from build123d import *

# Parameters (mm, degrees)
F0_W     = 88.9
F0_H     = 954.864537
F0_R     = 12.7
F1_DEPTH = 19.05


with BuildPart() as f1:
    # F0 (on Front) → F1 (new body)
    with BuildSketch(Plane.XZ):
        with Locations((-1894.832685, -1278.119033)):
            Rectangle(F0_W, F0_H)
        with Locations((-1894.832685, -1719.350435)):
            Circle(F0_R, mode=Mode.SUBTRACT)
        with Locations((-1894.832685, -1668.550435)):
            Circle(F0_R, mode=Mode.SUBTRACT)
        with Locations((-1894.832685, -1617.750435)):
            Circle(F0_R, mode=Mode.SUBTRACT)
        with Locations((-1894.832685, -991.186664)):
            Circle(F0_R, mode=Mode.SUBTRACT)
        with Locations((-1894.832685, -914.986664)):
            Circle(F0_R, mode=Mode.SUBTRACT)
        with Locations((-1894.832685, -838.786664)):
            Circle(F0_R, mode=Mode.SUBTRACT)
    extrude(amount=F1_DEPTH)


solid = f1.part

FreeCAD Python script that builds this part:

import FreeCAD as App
import Part
import Sketcher
from FreeCAD import Vector
Q = App.Units.Quantity


def add_polygon(sketch, points):
    """Adds a closed chain of lines whose ends are joined by coincident constraints."""
    first, n = sketch.GeometryCount, len(points)
    for a, b in zip(points, points[1:] + points[:1]):
        sketch.addGeometry(Part.LineSegment(App.Vector(*a, 0), App.Vector(*b, 0)), False)
    for i in range(n):
        sketch.addConstraint(Sketcher.Constraint("Coincident", first + i, 2, first + (i + 1) % n, 1))

doc = App.newDocument("Part")
body = doc.addObject("PartDesign::Body", "Body")

# Sketch on XZ plane
sketch1 = body.newObject("Sketcher::SketchObject", "Sketch")
sketch1.AttachmentSupport = (doc.getObject("XZ_Plane"), [""])
sketch1.MapMode = "FlatFace"
add_polygon(sketch1, [(-1939, -801), (-1939, -1756), (-1850, -1756), (-1850, -801)])  # lines 0-3
sketch1.addGeometry(Part.Circle(Vector(-1895, -1719, 0), Vector(0, 0, 1), 13), False)  # 4
sketch1.addGeometry(Part.Circle(Vector(-1895, -1669, 0), Vector(0, 0, 1), 13), False)  # 5
sketch1.addGeometry(Part.Circle(Vector(-1895, -1618, 0), Vector(0, 0, 1), 13), False)  # 6
sketch1.addGeometry(Part.Circle(Vector(-1895, -991, 0), Vector(0, 0, 1), 13), False)  # 7
sketch1.addGeometry(Part.Circle(Vector(-1895, -915, 0), Vector(0, 0, 1), 13), False)  # 8
sketch1.addGeometry(Part.Circle(Vector(-1895, -839, 0), Vector(0, 0, 1), 13), False)  # 9
sketch1.addConstraint(Sketcher.Constraint("Vertical", 0))
sketch1.addConstraint(Sketcher.Constraint("Horizontal", 1))
sketch1.addConstraint(Sketcher.Constraint("Vertical", 2))
sketch1.addConstraint(Sketcher.Constraint("Horizontal", 3))
sketch1.addConstraint(Sketcher.Constraint("Equal", 4, 5))
sketch1.addConstraint(Sketcher.Constraint("Equal", 5, 6))
sketch1.addConstraint(Sketcher.Constraint("Equal", 6, 7))
sketch1.addConstraint(Sketcher.Constraint("Equal", 7, 8))
sketch1.addConstraint(Sketcher.Constraint("Equal", 8, 9))
sketch1.addConstraint(Sketcher.Constraint("Vertical", 4, 3, 5, 3))
sketch1.addConstraint(Sketcher.Constraint("Vertical", 5, 3, 6, 3))
sketch1.addConstraint(Sketcher.Constraint("Vertical", 6, 3, 7, 3))
sketch1.addConstraint(Sketcher.Constraint("Vertical", 7, 3, 8, 3))
sketch1.addConstraint(Sketcher.Constraint("Vertical", 8, 3, 9, 3))
sketch1.addConstraint(Sketcher.Constraint("Diameter", 4, Q("1 in")))
sketch1.addConstraint(Sketcher.Constraint("DistanceX", 1, 1, 1, 2, Q("3.5 in")))
sketch1.addConstraint(Sketcher.Constraint("DistanceY", 4, 3, 5, 3, Q("2 in")))
sketch1.addConstraint(Sketcher.Constraint("DistanceY", 5, 3, 6, 3, Q("2 in")))
sketch1.addConstraint(Sketcher.Constraint("DistanceY", 7, 3, 8, 3, Q("3 in")))
sketch1.addConstraint(Sketcher.Constraint("DistanceY", 8, 3, 9, 3, Q("3 in")))
sketch1.addConstraint(Sketcher.Constraint("DistanceX", 0, 2, 4, 3, Q("1.75 in")))
sketch1.addConstraint(Sketcher.Constraint("DistanceY", 0, 2, -1, 1, Q("1755.551301 mm")))
sketch1.addConstraint(Sketcher.Constraint("DistanceY", 9, 3, 2, 2, Q("38.099899 mm")))
sketch1.addConstraint(Sketcher.Constraint("DistanceY", 0, 2, 0, 1, Q("954.864537 mm")))
sketch1.addConstraint(Sketcher.Constraint("DistanceY", 6, 3, 7, 3, Q("626.563771 mm")))
sketch1.addConstraint(Sketcher.Constraint("DistanceX", 4, 3, -1, 1, Q("1894.832685 mm")))
pad1 = body.newObject("PartDesign::Pad", "Pad")
pad1.Profile = sketch1
pad1.Length = Q("0.75 in")

doc.recompute()
